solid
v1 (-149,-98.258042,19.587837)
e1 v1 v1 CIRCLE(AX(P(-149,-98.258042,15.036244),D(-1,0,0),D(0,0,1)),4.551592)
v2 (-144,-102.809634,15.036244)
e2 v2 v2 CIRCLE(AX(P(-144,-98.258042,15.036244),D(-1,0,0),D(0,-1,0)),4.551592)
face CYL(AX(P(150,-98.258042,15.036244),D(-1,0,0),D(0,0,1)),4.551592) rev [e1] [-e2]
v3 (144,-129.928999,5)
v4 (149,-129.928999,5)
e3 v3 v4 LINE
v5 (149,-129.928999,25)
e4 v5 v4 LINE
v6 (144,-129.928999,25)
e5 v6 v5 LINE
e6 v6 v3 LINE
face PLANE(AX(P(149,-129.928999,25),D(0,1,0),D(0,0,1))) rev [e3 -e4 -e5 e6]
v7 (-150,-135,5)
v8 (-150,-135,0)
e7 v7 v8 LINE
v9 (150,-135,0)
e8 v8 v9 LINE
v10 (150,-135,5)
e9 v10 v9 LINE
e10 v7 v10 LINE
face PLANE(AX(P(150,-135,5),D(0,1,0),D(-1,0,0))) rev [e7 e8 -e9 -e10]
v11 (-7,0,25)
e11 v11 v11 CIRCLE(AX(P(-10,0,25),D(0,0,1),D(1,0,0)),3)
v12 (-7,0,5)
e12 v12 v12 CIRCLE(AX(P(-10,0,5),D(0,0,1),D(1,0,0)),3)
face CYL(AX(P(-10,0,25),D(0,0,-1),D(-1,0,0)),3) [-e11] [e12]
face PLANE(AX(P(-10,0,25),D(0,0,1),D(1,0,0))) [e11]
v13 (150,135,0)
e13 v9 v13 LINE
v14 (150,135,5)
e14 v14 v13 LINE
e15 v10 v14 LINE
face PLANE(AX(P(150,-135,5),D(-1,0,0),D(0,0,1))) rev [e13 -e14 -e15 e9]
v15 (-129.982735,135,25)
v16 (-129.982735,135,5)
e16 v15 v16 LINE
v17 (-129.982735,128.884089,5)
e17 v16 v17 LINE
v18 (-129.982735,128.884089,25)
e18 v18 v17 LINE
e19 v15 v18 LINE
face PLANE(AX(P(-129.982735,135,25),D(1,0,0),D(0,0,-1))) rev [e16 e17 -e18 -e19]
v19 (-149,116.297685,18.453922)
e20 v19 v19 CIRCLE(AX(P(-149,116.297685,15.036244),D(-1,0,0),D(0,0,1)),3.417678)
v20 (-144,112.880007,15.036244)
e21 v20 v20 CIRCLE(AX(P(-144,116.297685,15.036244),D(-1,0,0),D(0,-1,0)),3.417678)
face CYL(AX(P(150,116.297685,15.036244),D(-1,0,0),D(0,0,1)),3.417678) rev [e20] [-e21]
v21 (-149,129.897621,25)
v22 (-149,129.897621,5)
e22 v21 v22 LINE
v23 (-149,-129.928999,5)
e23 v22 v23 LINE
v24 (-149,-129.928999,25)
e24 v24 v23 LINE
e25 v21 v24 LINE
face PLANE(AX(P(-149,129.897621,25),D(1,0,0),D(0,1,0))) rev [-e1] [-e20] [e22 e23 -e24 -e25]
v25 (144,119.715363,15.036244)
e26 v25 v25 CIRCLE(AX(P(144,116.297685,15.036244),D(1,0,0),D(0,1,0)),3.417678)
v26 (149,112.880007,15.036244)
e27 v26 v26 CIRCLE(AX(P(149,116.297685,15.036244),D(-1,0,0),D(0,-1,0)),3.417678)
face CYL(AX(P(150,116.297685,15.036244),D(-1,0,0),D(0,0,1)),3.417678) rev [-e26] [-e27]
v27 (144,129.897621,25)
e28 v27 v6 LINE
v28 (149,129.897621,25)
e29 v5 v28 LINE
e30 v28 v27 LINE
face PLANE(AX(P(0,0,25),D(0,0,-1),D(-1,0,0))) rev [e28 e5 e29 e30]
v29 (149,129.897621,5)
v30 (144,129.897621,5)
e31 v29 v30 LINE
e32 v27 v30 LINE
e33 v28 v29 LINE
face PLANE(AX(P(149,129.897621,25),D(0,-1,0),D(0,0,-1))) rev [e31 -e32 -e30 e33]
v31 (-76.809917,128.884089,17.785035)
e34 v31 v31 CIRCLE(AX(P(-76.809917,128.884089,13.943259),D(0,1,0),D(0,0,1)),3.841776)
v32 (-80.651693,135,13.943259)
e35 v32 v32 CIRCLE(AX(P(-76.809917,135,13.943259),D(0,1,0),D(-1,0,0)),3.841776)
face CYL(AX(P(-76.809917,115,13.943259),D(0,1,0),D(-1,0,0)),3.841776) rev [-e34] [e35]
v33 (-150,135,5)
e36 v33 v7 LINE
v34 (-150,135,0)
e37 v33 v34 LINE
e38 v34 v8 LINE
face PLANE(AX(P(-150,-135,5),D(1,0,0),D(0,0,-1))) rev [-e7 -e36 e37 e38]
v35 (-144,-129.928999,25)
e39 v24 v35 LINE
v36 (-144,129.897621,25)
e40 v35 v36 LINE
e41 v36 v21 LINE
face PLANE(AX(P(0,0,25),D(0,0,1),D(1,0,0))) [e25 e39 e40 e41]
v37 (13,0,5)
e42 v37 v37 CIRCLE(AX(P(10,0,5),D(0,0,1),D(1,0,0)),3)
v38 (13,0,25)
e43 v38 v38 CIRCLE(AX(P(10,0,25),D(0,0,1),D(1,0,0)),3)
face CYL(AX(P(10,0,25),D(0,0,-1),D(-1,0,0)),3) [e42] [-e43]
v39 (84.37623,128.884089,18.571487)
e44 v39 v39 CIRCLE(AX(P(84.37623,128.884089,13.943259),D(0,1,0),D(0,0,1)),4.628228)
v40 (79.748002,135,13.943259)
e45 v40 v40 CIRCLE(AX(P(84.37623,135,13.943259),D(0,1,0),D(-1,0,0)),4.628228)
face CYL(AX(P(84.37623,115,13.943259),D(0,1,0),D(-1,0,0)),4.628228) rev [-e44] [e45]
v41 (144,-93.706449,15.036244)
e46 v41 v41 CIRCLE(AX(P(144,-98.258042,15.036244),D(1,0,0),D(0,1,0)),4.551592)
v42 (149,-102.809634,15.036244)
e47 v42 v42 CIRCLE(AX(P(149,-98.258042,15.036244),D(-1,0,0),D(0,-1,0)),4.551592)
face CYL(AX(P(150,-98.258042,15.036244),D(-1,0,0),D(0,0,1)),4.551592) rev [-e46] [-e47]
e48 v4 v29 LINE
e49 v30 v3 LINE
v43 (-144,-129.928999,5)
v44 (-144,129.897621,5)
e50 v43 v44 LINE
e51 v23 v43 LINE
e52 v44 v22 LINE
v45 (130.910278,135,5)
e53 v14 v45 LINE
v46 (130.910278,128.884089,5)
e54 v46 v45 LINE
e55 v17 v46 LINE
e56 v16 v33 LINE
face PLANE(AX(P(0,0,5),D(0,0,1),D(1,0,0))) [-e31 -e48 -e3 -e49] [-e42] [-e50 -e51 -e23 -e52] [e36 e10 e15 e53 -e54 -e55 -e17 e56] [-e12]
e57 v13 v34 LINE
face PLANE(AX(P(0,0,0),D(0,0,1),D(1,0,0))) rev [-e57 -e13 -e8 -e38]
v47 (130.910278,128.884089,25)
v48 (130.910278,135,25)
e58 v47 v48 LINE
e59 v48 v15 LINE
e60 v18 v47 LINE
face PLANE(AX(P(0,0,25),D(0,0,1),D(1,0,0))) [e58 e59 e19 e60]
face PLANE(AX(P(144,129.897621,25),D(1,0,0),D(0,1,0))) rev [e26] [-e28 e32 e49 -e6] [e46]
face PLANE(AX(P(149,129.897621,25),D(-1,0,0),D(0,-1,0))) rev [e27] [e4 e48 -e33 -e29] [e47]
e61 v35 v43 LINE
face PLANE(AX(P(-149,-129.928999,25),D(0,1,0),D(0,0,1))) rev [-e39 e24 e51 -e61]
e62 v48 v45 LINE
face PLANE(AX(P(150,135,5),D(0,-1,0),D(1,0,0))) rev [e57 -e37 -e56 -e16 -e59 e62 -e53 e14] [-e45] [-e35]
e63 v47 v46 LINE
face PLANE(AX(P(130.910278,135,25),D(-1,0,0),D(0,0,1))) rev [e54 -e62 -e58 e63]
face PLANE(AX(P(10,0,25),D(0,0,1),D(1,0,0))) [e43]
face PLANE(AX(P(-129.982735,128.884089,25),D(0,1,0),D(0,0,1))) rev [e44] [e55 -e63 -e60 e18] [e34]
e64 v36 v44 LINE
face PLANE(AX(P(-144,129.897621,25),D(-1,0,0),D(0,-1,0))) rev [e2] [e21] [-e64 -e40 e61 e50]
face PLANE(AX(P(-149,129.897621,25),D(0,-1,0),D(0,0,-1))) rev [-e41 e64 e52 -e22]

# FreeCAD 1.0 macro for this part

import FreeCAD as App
import Part
import Sketcher
Q = App.Units.Quantity

doc = App.newDocument("Part")
params = doc.addObject("Spreadsheet::Sheet", "Params")
for row, (alias, value) in enumerate([
    ("sketch1_width", "300 mm"),
    ("sketch1_height", "270 mm"),
    ("pad1_length", "5 mm"),
    ("sketch2_width", "5 mm"),
    ("pad2_length", "20 mm"),
    ("sketch4_diameter", "6 mm"),
    ("pad3_length", "20 mm"),
    ("pocket2_length", "20 mm"),
], start=1):
    params.set(f"A{row}", alias)
    params.set(f"B{row}", "=" + value)
    params.setAlias(f"B{row}", alias)

body = doc.addObject("PartDesign::Body", "Body")

sketch1 = body.newObject("Sketcher::SketchObject", "Sketch")
sketch1.AttachmentSupport = (doc.getObject("XY_Plane"), [""])
sketch1.MapMode = "FlatFace"
sketch1.addGeometry(Part.LineSegment(App.Vector(-150, 135, 0), App.Vector(-150, -135, 0)), False)
sketch1.addGeometry(Part.LineSegment(App.Vector(-150, -135, 0), App.Vector(150, -135, 0)), False)
sketch1.addGeometry(Part.LineSegment(App.Vector(150, -135, 0), App.Vector(150, 135, 0)), False)
sketch1.addGeometry(Part.LineSegment(App.Vector(150, 135, 0), App.Vector(-150, 135, 0)), False)
sketch1.addConstraint(Sketcher.Constraint("Coincident", 0, 2, 1, 1))
sketch1.addConstraint(Sketcher.Constraint("Coincident", 1, 2, 2, 1))
sketch1.addConstraint(Sketcher.Constraint("Coincident", 2, 2, 3, 1))
sketch1.addConstraint(Sketcher.Constraint("Coincident", 3, 2, 0, 1))
sketch1.addConstraint(Sketcher.Constraint("Vertical", 0))
sketch1.addConstraint(Sketcher.Constraint("Horizontal", 1))
sketch1.addConstraint(Sketcher.Constraint("Vertical", 2))
sketch1.addConstraint(Sketcher.Constraint("Horizontal", 3))
sketch1.addConstraint(Sketcher.Constraint("Symmetric", 0, 2, 2, 2, -1, 1))
sketch1.addConstraint(Sketcher.Constraint("DistanceX", 1, 1, 1, 2, Q("300 mm")))
sketch1.addConstraint(Sketcher.Constraint("DistanceY", 0, 2, 0, 1, Q("270 mm")))
sketch1.setExpression("Constraints[9]", "Params.sketch1_width")
sketch1.setExpression("Constraints[10]", "Params.sketch1_height")
pad1 = body.newObject("PartDesign::Pad", "Pad")
pad1.Profile = sketch1
pad1.setExpression("Length", "Params.pad1_length")

sketch2 = body.newObject("Sketcher::SketchObject", "Sketch001")
sketch2.AttachmentSupport = (doc.getObject("XY_Plane"), [""])
sketch2.MapMode = "FlatFace"
sketch2.AttachmentOffset = App.Placement(App.Vector(0, 0, 5), App.Rotation())
sketch2.addGeometry(Part.LineSegment(App.Vector(-149, 130, 0), App.Vector(-149, -130, 0)), False)
sketch2.addGeometry(Part.LineSegment(App.Vector(-149, -130, 0), App.Vector(-144, -130, 0)), False)
sketch2.addGeometry(Part.LineSegment(App.Vector(-144, -130, 0), App.Vector(-144, 130, 0)), False)
sketch2.addGeometry(Part.LineSegment(App.Vector(-144, 130, 0), App.Vector(-149, 130, 0)), False)
sketch2.addGeometry(Part.LineSegment(App.Vector(144, 130, 0), App.Vector(144, -130, 0)), False)
sketch2.addGeometry(Part.LineSegment(App.Vector(144, -130, 0), App.Vector(149, -130, 0)), False)
sketch2.addGeometry(Part.LineSegment(App.Vector(149, -130, 0), App.Vector(149, 130, 0)), False)
sketch2.addGeometry(Part.LineSegment(App.Vector(149, 130, 0), App.Vector(144, 130, 0)), False)
sketch2.addGeometry(Part.LineSegment(App.Vector(-130, 135, 0), App.Vector(-130, 129, 0)), False)
sketch2.addGeometry(Part.LineSegment(App.Vector(-130, 129, 0), App.Vector(131, 129, 0)), False)
sketch2.addGeometry(Part.LineSegment(App.Vector(131, 129, 0), App.Vector(131, 135, 0)), False)
sketch2.addGeometry(Part.LineSegment(App.Vector(131, 135, 0), App.Vector(-130, 135, 0)), False)
sketch2.addConstraint(Sketcher.Constraint("Coincident", 0, 2, 1, 1))
sketch2.addConstraint(Sketcher.Constraint("Coincident", 1, 2, 2, 1))
sketch2.addConstraint(Sketcher.Constraint("Coincident", 2, 2, 3, 1))
sketch2.addConstraint(Sketcher.Constraint("Coincident", 3, 2, 0, 1))
sketch2.addConstraint(Sketcher.Constraint("Coincident", 4, 2, 5, 1))
sketch2.addConstraint(Sketcher.Constraint("Coincident", 5, 2, 6, 1))
sketch2.addConstraint(Sketcher.Constraint("Coincident", 6, 2, 7, 1))
sketch2.addConstraint(Sketcher.Constraint("Coincident", 7, 2, 4, 1))
sketch2.addConstraint(Sketcher.Constraint("Coincident", 8, 2, 9, 1))
sketch2.addConstraint(Sketcher.Constraint("Coincident", 9, 2, 10, 1))
sketch2.addConstraint(Sketcher.Constraint("Coincident", 10, 2, 11, 1))
sketch2.addConstraint(Sketcher.Constraint("Coincident", 11, 2, 8, 1))
sketch2.addConstraint(Sketcher.Constraint("Vertical", 0))
sketch2.addConstraint(Sketcher.Constraint("Horizontal", 1))
sketch2.addConstraint(Sketcher.Constraint("Vertical", 2))
sketch2.addConstraint(Sketcher.Constraint("Horizontal", 3))
sketch2.addConstraint(Sketcher.Constraint("Vertical", 4))
sketch2.addConstraint(Sketcher.Constraint("Horizontal", 5))
sketch2.addConstraint(Sketcher.Constraint("Vertical", 6))
sketch2.addConstraint(Sketcher.Constraint("Horizontal", 7))
sketch2.addConstraint(Sketcher.Constraint("Vertical", 8))
sketch2.addConstraint(Sketcher.Constraint("Horizontal", 9))
sketch2.addConstraint(Sketcher.Constraint("Vertical", 10))
sketch2.addConstraint(Sketcher.Constraint("Horizontal", 11))
sketch2.addConstraint(Sketcher.Constraint("Symmetric", 1, 2, 4, 2, -2))
sketch2.addConstraint(Sketcher.Constraint("Symmetric", 3, 2, 6, 2, -2))
sketch2.addConstraint(Sketcher.Constraint("DistanceX", 1, 1, 1, 2, Q("5 mm")))
sketch2.addConstraint(Sketcher.Constraint("DistanceX", 0, 2, -1, 1, Q("149 mm")))
sketch2.addConstraint(Sketcher.Constraint("DistanceY", -1, 1, 10, 2, Q("135 mm")))
sketch2.addConstraint(Sketcher.Constraint("DistanceY", 0, 2, -1, 1, Q("129.928999 mm")))
sketch2.addConstraint(Sketcher.Constraint("DistanceY", 0, 2, 0, 1, Q("259.826621 mm")))
sketch2.addConstraint(Sketcher.Constraint("DistanceY", 8, 2, 8, 1, Q("6.115911 mm")))
sketch2.addConstraint(Sketcher.Constraint("DistanceX", 9, 1, 9, 2, Q("260.893013 mm")))
sketch2.addConstraint(Sketcher.Constraint("DistanceX", -1, 1, 9, 2, Q("130.910278 mm")))
sketch2.setExpression("Constraints[26]", "Params.sketch2_width")
pad2 = body.newObject("PartDesign::Pad", "Pad001")
pad2.Profile = sketch2
pad2.setExpression("Length", "Params.pad2_length")

sketch3 = body.newObject("Sketcher::SketchObject", "Sketch002")
sketch3.AttachmentSupport = (doc.getObject("YZ_Plane"), [""])
sketch3.MapMode = "FlatFace"
sketch3.AttachmentOffset = App.Placement(App.Vector(0, 0, -149), App.Rotation())
sketch3.addGeometry(Part.Circle(App.Vector(116.3, 15, 0), App.Vector(0, 0, 1), 3.4), False)
sketch3.addGeometry(Part.Circle(App.Vector(-98.3, 15, 0), App.Vector(0, 0, 1), 4.6), False)
sketch3.addConstraint(Sketcher.Constraint("Horizontal", 0, 3, 1, 3))
sketch3.addConstraint(Sketcher.Constraint("Diameter", 0, Q("6.835355 mm")))
sketch3.addConstraint(Sketcher.Constraint("Diameter", 1, Q("9.103185 mm")))
sketch3.addConstraint(Sketcher.Constraint("DistanceX", 1, 3, -1, 1, Q("98.258042 mm")))
sketch3.addConstraint(Sketcher.Constraint("DistanceX", -1, 1, 0, 3, Q("116.297685 mm")))
sketch3.addConstraint(Sketcher.Constraint("DistanceY", -1, 1, 0, 3, Q("15.036244 mm")))
pocket1 = body.newObject("PartDesign::Pocket", "Pocket")
pocket1.Profile = sketch3
pocket1.Type = "ThroughAll"
pocket1.Reversed = True

sketch4 = body.newObject("Sketcher::SketchObject", "Sketch003")
sketch4.AttachmentSupport = (doc.getObject("XY_Plane"), [""])
sketch4.MapMode = "FlatFace"
sketch4.AttachmentOffset = App.Placement(App.Vector(0, 0, 5), App.Rotation())
sketch4.addGeometry(Part.Circle(App.Vector(-10, 0, 0), App.Vector(0, 0, 1), 3), False)
sketch4.addGeometry(Part.Circle(App.Vector(10, 0, 0), App.Vector(0, 0, 1), 3), False)
sketch4.addConstraint(Sketcher.Constraint("Equal", 0, 1))
sketch4.addConstraint(Sketcher.Constraint("Symmetric", 0, 3, 1, 3, -1, 1))
sketch4.addConstraint(Sketcher.Constraint("PointOnObject", 0, 3, -1))
sketch4.addConstraint(Sketcher.Constraint("Diameter", 0, Q("6 mm")))
sketch4.addConstraint(Sketcher.Constraint("DistanceX", 0, 3, -1, 1, Q("10 mm")))
sketch4.setExpression("Constraints[3]", "Params.sketch4_diameter")
pad3 = body.newObject("PartDesign::Pad", "Pad002")
pad3.Profile = sketch4
pad3.setExpression("Length", "Params.pad3_length")

sketch5 = body.newObject("Sketcher::SketchObject", "Sketch004")
sketch5.AttachmentSupport = (doc.getObject("XZ_Plane"), [""])
sketch5.MapMode = "FlatFace"
sketch5.AttachmentOffset = App.Placement(App.Vector(0, 0, -135), App.Rotation())
sketch5.addGeometry(Part.Circle(App.Vector(-76.8, 13.9, 0), App.Vector(0, 0, 1), 3.8), False)
sketch5.addGeometry(Part.Circle(App.Vector(84.4, 13.9, 0), App.Vector(0, 0, 1), 4.6), False)
sketch5.addConstraint(Sketcher.Constraint("Horizontal", 0, 3, 1, 3))
sketch5.addConstraint(Sketcher.Constraint("Diameter", 0, Q("7.683553 mm")))
sketch5.addConstraint(Sketcher.Constraint("Diameter", 1, Q("9.256457 mm")))
sketch5.addConstraint(Sketcher.Constraint("DistanceY", -1, 1, 0, 3, Q("13.943259 mm")))
sketch5.addConstraint(Sketcher.Constraint("DistanceX", -1, 1, 1, 3, Q("84.37623 mm")))
sketch5.addConstraint(Sketcher.Constraint("DistanceX", 0, 3, -1, 1, Q("76.809917 mm")))
pocket2 = body.newObject("PartDesign::Pocket", "Pocket001")
pocket2.Profile = sketch5
pocket2.setExpression("Length", "Params.pocket2_length")
pocket2.Reversed = True

doc.recompute()
